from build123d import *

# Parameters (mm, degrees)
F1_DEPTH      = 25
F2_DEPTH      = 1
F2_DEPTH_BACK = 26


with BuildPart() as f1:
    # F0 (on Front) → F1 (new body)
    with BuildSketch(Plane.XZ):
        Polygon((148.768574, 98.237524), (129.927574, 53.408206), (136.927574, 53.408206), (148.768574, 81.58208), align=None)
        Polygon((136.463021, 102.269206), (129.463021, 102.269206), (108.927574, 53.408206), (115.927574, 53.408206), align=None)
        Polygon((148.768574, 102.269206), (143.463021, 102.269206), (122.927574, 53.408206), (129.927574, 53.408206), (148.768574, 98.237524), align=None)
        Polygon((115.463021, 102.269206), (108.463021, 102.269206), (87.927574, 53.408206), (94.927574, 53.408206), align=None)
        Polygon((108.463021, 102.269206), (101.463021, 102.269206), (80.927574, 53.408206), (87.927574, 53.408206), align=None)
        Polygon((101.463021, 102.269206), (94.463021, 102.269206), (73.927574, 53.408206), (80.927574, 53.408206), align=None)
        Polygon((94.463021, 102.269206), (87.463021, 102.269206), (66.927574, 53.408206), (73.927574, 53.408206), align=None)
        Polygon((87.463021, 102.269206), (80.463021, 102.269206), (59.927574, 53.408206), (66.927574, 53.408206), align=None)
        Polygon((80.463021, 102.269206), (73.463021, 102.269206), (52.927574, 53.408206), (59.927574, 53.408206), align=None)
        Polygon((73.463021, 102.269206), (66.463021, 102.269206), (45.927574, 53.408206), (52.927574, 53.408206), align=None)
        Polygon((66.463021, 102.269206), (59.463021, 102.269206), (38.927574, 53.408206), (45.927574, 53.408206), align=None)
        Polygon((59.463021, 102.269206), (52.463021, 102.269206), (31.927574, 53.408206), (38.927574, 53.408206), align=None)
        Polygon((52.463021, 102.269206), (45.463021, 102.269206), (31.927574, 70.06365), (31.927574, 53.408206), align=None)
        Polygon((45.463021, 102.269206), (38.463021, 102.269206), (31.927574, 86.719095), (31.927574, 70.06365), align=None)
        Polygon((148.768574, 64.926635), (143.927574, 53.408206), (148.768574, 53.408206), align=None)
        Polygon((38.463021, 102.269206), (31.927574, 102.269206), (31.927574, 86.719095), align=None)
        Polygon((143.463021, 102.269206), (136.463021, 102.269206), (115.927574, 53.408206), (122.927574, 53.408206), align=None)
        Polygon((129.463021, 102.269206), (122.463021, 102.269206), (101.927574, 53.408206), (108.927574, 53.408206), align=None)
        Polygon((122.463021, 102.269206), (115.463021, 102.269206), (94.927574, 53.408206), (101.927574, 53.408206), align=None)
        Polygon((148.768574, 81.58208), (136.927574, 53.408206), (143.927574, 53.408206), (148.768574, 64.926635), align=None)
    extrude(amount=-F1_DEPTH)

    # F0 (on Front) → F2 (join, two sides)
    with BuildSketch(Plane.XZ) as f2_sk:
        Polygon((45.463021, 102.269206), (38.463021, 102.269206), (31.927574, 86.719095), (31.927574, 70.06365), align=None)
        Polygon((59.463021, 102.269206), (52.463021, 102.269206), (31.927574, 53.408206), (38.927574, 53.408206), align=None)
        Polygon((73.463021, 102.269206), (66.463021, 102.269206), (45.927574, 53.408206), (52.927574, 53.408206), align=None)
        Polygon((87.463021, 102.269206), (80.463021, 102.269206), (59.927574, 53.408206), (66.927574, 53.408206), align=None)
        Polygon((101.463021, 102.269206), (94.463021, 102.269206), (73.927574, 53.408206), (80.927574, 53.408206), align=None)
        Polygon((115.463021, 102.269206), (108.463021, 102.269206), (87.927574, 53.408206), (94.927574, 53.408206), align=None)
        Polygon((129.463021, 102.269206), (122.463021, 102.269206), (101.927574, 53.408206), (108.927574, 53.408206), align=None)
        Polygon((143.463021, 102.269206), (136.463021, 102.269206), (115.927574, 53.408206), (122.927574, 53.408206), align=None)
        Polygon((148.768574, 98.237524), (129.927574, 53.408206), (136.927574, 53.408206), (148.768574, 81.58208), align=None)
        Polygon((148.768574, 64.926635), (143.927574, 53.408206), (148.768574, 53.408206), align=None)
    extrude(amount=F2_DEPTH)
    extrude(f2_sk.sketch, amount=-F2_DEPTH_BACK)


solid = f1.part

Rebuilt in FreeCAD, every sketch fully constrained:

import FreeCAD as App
import Part
import Sketcher


def add_polygon(sketch, points):
    """Adds a closed chain of lines whose ends are joined by coincident constraints."""
    first, n = sketch.GeometryCount, len(points)
    for a, b in zip(points, points[1:] + points[:1]):
        sketch.addGeometry(Part.LineSegment(App.Vector(*a, 0), App.Vector(*b, 0)), False)
    for i in range(n):
        sketch.addConstraint(Sketcher.Constraint("Coincident", first + i, 2, first + (i + 1) % n, 1))

doc = App.newDocument("Part")
body = doc.addObject("PartDesign::Body", "Body")

# Sketch on XZ plane
sketch1 = doc.addObject("Sketcher::SketchObject", "Sketch")
body.addObject(sketch1)
sketch1.AttachmentSupport = (doc.XZ_Plane, [""])
sketch1.MapMode = "FlatFace"
add_polygon(sketch1, [(149, 102), (32, 102), (32, 53), (149, 53)])  # lines 0-3
sketch1.addConstraint([
    Sketcher.Constraint("Horizontal", 0),
    Sketcher.Constraint("Vertical", 1),
    Sketcher.Constraint("Horizontal", 2),
    Sketcher.Constraint("Vertical", 3),
    Sketcher.Constraint("DistanceX", 0, 2, 0, 1, 116.841),
    Sketcher.Constraint("DistanceY", 1, 2, 1, 1, 48.861),
    Sketcher.Constraint("DistanceX", -1, 1, 0, 2, 31.927574),
    Sketcher.Constraint("DistanceY", -1, 1, 0, 2, 102.269206),
])
pad1 = doc.addObject("PartDesign::Pad", "Pad")
body.addObject(pad1)
pad1.Profile = sketch1
pad1.Length = 25
pad1.Reversed = True

# Sketch on XZ plane
sketch2 = doc.addObject("Sketcher::SketchObject", "Sketch001")
body.addObject(sketch2)
sketch2.AttachmentSupport = (doc.XZ_Plane, [""])
sketch2.MapMode = "FlatFace"
add_polygon(sketch2, [(45.5, 102.3), (38.5, 102.3), (31.9, 86.7), (31.9, 70.1)])  # lines 0-3
add_polygon(sketch2, [(59.5, 102.3), (52.5, 102.3), (31.9, 53.4), (38.9, 53.4)])  # lines 4-7
add_polygon(sketch2, [(73.5, 102.3), (66.5, 102.3), (45.9, 53.4), (52.9, 53.4)])  # lines 8-11
add_polygon(sketch2, [(87.5, 102.3), (80.5, 102.3), (59.9, 53.4), (66.9, 53.4)])  # lines 12-15
add_polygon(sketch2, [(101.5, 102.3), (94.5, 102.3), (73.9, 53.4), (80.9, 53.4)])  # lines 16-19
add_polygon(sketch2, [(115.5, 102.3), (108.5, 102.3), (87.9, 53.4), (94.9, 53.4)])  # lines 20-23
add_polygon(sketch2, [(129.5, 102.3), (122.5, 102.3), (101.9, 53.4), (108.9, 53.4)])  # lines 24-27
add_polygon(sketch2, [(143.5, 102.3), (136.5, 102.3), (115.9, 53.4), (122.9, 53.4)])  # lines 28-31
add_polygon(sketch2, [(148.8, 98.2), (129.9, 53.4), (136.9, 53.4), (148.8, 81.6)])  # lines 32-35
add_polygon(sketch2, [(148.8, 64.9), (143.9, 53.4), (148.8, 53.4)])  # lines 36-38
sketch2.addConstraint([
    Sketcher.Constraint("Horizontal", 0),
    Sketcher.Constraint("Vertical", 2),
    Sketcher.Constraint("Horizontal", 4),
    Sketcher.Constraint("Horizontal", 6),
    Sketcher.Constraint("Horizontal", 8),
    Sketcher.Constraint("Horizontal", 10),
    Sketcher.Constraint("Horizontal", 12),
    Sketcher.Constraint("Horizontal", 14),
    Sketcher.Constraint("Horizontal", 16),
    Sketcher.Constraint("Horizontal", 18),
    Sketcher.Constraint("Horizontal", 20),
    Sketcher.Constraint("Horizontal", 22),
    Sketcher.Constraint("Horizontal", 24),
    Sketcher.Constraint("Horizontal", 26),
    Sketcher.Constraint("Horizontal", 28),
    Sketcher.Constraint("Horizontal", 30),
    Sketcher.Constraint("Horizontal", 33),
    Sketcher.Constraint("Vertical", 35),
    Sketcher.Constraint("Horizontal", 37),
    Sketcher.Constraint("Vertical", 38),
    Sketcher.Constraint("Parallel", 1, 3),
    Sketcher.Constraint("Parallel", 3, 5),
    Sketcher.Constraint("Parallel", 5, 7),
    Sketcher.Constraint("Parallel", 7, 9),
    Sketcher.Constraint("Parallel", 9, 11),
    Sketcher.Constraint("Parallel", 11, 13),
    Sketcher.Constraint("Parallel", 13, 15),
    Sketcher.Constraint("Parallel", 15, 17),
    Sketcher.Constraint("Parallel", 17, 19),
    Sketcher.Constraint("Parallel", 19, 21),
    Sketcher.Constraint("Parallel", 21, 23),
    Sketcher.Constraint("Parallel", 23, 25),
    Sketcher.Constraint("Parallel", 25, 27),
    Sketcher.Constraint("Parallel", 27, 29),
    Sketcher.Constraint("Parallel", 29, 31),
    Sketcher.Constraint("Parallel", 31, 32),
    Sketcher.Constraint("Parallel", 32, 34),
    Sketcher.Constraint("Parallel", 34, 36),
    Sketcher.Constraint("Horizontal", 3, 2, 4, 2),
    Sketcher.Constraint("Horizontal", 7, 2, 8, 2),
    Sketcher.Constraint("Horizontal", 6, 2, 9, 2),
    Sketcher.Constraint("Horizontal", 11, 2, 12, 2),
    Sketcher.Constraint("Horizontal", 10, 2, 13, 2),
    Sketcher.Constraint("Horizontal", 15, 2, 16, 2),
    Sketcher.Constraint("Horizontal", 14, 2, 17, 2),
    Sketcher.Constraint("Horizontal", 19, 2, 20, 2),
    Sketcher.Constraint("Horizontal", 18, 2, 21, 2),
    Sketcher.Constraint("Horizontal", 23, 2, 24, 2),
    Sketcher.Constraint("Horizontal", 22, 2, 25, 2),
    Sketcher.Constraint("Horizontal", 27, 2, 28, 2),
    Sketcher.Constraint("Horizontal", 26, 2, 29, 2),
    Sketcher.Constraint("Horizontal", 30, 2, 32, 2),
    Sketcher.Constraint("Horizontal", 33, 2, 36, 2),
    Sketcher.Constraint("Vertical", 2, 2, 5, 2),
    Sketcher.Constraint("Vertical", 35, 2, 37, 2),
    Sketcher.Constraint("Equal", 0, 4),
    Sketcher.Constraint("Equal", 6, 8),
    Sketcher.Constraint("Equal", 10, 12),
    Sketcher.Constraint("Equal", 14, 16),
    Sketcher.Constraint("Equal", 18, 20),
    Sketcher.Constraint("Equal", 22, 24),
    Sketcher.Constraint("Equal", 26, 28),
    Sketcher.Constraint("Equal", 30, 33),
    Sketcher.Constraint("DistanceX", 0, 2, 0, 1, 7.0),
    Sketcher.Constraint("DistanceX", 3, 2, 4, 2, 7.0),
    Sketcher.Constraint("DistanceX", 7, 2, 8, 2, 7.0),
    Sketcher.Constraint("DistanceX", 11, 2, 12, 2, 7.0),
    Sketcher.Constraint("DistanceX", 15, 2, 16, 2, 7.0),
    Sketcher.Constraint("DistanceX", 19, 2, 20, 2, 7.0),
    Sketcher.Constraint("DistanceX", 23, 2, 24, 2, 7.0),
    Sketcher.Constraint("DistanceX", 27, 2, 28, 2, 7.0),
    Sketcher.Constraint("DistanceX", 30, 2, 32, 2, 7.0),
    Sketcher.Constraint("DistanceX", 33, 2, 36, 2, 7.0),
    Sketcher.Constraint("DistanceX", 37, 1, 37, 2, 4.841),
    Sketcher.Constraint("DistanceY", 5, 2, 0, 2, 48.861),
    Sketcher.Constraint("DistanceY", 38, 1, 38, 2, 11.518429),
    Sketcher.Constraint("DistanceX", -1, 1, 0, 2, 38.463021),
    Sketcher.Constraint("DistanceY", -1, 1, 2, 2, 70.06365),
])
pad2 = doc.addObject("PartDesign::Pad", "Pad001")
body.addObject(pad2)
pad2.Profile = sketch2
pad2.Type = "TwoLengths"
pad2.Length = 1
pad2.Length2 = 26

doc.recompute()
